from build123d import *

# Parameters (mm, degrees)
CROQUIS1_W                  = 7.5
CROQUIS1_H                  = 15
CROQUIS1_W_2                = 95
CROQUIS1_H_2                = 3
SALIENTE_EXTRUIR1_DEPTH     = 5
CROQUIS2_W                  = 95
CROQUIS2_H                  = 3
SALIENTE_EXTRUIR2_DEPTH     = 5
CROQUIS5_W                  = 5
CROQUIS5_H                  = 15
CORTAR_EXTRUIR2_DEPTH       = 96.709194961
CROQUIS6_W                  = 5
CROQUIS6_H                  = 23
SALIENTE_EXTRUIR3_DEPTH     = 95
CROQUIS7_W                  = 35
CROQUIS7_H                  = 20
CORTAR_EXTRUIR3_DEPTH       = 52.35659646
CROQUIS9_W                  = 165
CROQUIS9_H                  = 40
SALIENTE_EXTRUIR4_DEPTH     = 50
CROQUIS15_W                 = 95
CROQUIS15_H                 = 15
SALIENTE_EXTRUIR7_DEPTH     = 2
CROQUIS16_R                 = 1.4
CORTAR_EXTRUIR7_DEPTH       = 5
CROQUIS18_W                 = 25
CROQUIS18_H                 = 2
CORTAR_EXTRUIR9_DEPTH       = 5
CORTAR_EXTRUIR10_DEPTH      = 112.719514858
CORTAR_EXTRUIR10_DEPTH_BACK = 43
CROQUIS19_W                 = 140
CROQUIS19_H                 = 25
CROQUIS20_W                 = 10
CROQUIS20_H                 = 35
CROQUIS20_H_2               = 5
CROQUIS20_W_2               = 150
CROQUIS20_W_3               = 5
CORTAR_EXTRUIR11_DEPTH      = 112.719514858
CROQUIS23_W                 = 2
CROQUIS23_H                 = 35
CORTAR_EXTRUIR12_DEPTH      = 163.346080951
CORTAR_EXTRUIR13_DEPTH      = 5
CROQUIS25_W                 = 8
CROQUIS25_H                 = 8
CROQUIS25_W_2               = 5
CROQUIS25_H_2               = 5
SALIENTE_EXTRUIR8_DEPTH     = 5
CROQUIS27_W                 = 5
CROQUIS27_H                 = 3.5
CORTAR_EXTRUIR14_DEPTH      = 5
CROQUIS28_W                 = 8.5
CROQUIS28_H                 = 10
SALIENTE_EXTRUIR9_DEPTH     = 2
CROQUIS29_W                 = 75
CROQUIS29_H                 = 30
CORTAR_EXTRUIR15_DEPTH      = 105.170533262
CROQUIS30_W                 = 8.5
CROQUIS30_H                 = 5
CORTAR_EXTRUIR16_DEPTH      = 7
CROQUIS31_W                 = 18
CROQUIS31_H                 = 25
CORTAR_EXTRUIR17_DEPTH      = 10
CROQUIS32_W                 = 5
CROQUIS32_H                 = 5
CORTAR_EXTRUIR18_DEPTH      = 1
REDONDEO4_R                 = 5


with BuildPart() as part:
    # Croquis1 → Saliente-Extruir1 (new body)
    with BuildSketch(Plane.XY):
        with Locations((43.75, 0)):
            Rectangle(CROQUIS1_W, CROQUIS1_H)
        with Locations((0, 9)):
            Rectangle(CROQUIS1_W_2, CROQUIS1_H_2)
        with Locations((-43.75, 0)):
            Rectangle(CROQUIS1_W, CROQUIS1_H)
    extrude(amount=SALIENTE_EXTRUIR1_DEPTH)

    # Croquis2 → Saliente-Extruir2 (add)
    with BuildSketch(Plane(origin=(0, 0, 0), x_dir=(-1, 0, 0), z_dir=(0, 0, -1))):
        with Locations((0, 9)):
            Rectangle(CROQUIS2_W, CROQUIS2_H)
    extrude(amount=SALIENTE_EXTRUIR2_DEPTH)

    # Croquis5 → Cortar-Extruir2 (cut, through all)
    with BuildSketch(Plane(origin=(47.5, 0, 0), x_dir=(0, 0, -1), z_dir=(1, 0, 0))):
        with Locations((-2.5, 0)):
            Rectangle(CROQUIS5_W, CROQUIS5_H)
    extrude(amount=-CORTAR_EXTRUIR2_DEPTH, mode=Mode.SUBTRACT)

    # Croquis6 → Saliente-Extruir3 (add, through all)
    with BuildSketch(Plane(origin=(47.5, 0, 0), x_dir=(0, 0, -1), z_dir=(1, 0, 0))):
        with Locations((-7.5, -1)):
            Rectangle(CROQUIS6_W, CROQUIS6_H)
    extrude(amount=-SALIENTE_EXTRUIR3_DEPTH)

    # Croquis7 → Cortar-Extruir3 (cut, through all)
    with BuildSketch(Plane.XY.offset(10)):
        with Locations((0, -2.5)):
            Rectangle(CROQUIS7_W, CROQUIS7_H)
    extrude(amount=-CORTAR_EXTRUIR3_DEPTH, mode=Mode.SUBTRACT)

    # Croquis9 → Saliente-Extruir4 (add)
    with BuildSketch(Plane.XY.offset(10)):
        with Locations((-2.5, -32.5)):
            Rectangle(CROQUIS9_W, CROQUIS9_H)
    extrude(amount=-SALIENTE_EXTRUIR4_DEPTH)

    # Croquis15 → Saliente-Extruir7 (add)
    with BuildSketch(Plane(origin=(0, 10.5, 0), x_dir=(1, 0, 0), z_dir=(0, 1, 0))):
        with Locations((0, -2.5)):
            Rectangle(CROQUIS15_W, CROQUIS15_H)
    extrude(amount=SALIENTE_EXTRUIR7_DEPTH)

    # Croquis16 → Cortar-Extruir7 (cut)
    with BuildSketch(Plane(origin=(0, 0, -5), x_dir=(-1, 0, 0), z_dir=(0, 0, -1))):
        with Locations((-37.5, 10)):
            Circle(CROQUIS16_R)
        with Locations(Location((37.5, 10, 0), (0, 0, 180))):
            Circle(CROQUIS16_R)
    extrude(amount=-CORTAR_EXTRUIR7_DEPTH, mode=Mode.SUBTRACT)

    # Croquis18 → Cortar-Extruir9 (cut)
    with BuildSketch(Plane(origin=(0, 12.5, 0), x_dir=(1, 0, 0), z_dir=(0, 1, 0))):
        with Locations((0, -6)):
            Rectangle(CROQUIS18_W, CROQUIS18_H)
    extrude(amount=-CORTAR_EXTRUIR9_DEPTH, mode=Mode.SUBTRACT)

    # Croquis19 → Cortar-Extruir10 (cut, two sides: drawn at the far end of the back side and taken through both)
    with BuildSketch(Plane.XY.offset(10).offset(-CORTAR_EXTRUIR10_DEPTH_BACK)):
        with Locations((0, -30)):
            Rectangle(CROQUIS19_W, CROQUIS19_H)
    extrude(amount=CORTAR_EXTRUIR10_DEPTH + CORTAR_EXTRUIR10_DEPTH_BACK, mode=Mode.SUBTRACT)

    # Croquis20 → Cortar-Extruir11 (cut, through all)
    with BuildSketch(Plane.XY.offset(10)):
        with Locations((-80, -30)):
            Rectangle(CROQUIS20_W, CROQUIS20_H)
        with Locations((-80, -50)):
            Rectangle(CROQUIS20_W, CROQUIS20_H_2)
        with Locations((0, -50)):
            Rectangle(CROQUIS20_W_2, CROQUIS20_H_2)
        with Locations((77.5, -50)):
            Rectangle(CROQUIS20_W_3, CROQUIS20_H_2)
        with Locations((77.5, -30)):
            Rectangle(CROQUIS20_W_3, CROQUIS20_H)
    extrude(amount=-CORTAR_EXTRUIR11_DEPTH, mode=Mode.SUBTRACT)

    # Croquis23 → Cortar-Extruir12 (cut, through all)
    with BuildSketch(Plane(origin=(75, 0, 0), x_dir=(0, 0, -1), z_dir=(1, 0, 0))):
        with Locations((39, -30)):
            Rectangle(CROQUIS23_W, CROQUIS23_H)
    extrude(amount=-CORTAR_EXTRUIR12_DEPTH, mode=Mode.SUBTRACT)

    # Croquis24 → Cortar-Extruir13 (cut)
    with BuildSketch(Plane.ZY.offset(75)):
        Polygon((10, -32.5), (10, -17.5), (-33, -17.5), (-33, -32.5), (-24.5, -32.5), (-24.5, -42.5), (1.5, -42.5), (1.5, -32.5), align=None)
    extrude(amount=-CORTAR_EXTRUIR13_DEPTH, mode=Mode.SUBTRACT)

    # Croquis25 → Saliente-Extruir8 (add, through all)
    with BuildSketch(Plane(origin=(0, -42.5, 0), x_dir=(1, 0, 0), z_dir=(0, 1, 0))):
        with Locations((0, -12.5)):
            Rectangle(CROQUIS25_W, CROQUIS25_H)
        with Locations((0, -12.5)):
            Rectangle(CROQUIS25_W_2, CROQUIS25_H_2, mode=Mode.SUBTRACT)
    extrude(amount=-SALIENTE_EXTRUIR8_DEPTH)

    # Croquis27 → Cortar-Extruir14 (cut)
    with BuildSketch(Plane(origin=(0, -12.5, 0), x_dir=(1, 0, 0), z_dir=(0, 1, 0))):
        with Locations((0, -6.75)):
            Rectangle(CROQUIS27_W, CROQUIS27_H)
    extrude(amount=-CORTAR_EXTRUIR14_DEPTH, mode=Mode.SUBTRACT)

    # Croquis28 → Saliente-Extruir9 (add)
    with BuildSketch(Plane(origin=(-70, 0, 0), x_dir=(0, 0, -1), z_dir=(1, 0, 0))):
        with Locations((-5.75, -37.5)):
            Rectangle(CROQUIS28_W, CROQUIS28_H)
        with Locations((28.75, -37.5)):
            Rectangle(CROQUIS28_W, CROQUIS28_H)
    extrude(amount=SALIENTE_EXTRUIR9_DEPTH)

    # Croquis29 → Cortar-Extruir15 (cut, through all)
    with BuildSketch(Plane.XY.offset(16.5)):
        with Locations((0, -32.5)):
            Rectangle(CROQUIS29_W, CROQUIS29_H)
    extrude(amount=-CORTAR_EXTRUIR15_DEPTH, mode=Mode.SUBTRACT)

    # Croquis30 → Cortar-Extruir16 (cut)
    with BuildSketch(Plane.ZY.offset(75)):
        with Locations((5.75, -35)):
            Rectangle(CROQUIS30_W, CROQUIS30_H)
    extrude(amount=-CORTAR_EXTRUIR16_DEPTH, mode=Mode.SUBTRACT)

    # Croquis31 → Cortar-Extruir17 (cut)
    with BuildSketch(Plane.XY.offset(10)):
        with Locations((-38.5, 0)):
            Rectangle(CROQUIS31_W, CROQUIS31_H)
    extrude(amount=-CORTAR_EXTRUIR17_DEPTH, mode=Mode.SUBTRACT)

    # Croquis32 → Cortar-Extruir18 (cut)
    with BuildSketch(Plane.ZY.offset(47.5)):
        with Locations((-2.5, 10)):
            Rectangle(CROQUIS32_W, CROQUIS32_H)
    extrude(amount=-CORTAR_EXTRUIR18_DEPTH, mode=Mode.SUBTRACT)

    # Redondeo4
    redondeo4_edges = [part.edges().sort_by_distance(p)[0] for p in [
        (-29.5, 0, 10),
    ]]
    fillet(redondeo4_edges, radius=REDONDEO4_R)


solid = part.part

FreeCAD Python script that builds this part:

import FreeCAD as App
import Part
import Sketcher


def edges_at(feature, points):
    """Names of the edges that pass closest to the given points."""
    edges = feature.Shape.Edges
    near = lambda p: min(range(len(edges)), key=lambda i: edges[i].distToShape(Part.Vertex(*p))[0])
    return sorted({f"Edge{near(p) + 1}" for p in points})

doc = App.newDocument("Part")
params = doc.addObject("Spreadsheet::Sheet", "Params")
for row, (alias, value) in enumerate([
    ("sketch1_width", "95 mm"),
    ("sketch1_width2", "80 mm"),
    ("sketch1_height", "15 mm"),
    ("sketch1_height2", "18 mm"),
    ("pad1_length", "5 mm"),
    ("sketch2_width", "95 mm"),
    ("sketch2_height", "3 mm"),
    ("pad2_length", "5 mm"),
    ("sketch3_width", "15 mm"),
    ("sketch3_height", "5 mm"),
    ("sketch4_width", "23 mm"),
    ("sketch4_height", "5 mm"),
    ("pad3_length", "95 mm"),
    ("sketch5_width", "35 mm"),
    ("sketch5_height", "20 mm"),
    ("sketch6_width", "165 mm"),
    ("sketch6_height", "40 mm"),
    ("pad4_length", "50 mm"),
    ("sketch7_width", "95 mm"),
    ("sketch7_height", "15 mm"),
    ("pad5_length", "2 mm"),
    ("sketch8_diameter", "2.8 mm"),
    ("pocket3_length", "5 mm"),
    ("sketch9_width", "25 mm"),
    ("sketch9_height", "2 mm"),
    ("pocket4_length", "5 mm"),
    ("sketch10_width", "140 mm"),
    ("sketch10_height", "25 mm"),
    ("pocket5_length", "112.719515 mm"),
    ("pocket5_length2", "43 mm"),
    ("sketch11_width", "165 mm"),
    ("sketch11_width2", "5 mm"),
    ("sketch11_width3", "150 mm"),
    ("sketch11_height", "40 mm"),
    ("sketch11_height2", "35 mm"),
    ("sketch12_width", "35 mm"),
    ("sketch12_height", "2 mm"),
    ("sketch13_width", "15 mm"),
    ("sketch13_width2", "10 mm"),
    ("sketch13_height", "43 mm"),
    ("sketch13_height2", "26 mm"),
    ("pocket8_length", "5 mm"),
    ("sketch14_width", "8 mm"),
    ("sketch14_width2", "5 mm"),
    ("pad6_length", "5 mm"),
    ("sketch15_width", "5 mm"),
    ("sketch15_height", "3.5 mm"),
    ("pocket9_length", "5 mm"),
    ("sketch16_width", "10 mm"),
    ("sketch16_height", "8.5 mm"),
    ("pad7_length", "2 mm"),
    ("sketch17_width", "75 mm"),
    ("sketch17_height", "30 mm"),
    ("sketch18_width", "5 mm"),
    ("sketch18_height", "8.5 mm"),
    ("pocket11_length", "7 mm"),
    ("sketch19_width", "18 mm"),
    ("sketch19_height", "25 mm"),
    ("pocket12_length", "10 mm"),
    ("sketch20_width", "5 mm"),
    ("pocket13_length", "1 mm"),
    ("fillet_radius", "5 mm"),
], start=1):
    params.set(f"A{row}", alias)
    params.set(f"B{row}", "=" + value)
    params.setAlias(f"B{row}", alias)

body = doc.addObject("PartDesign::Body", "Body")

sketch1 = body.newObject("Sketcher::SketchObject", "Sketch")
sketch1.AttachmentSupport = (doc.getObject("XY_Plane"), [""])
sketch1.MapMode = "FlatFace"
sketch1.addGeometry([
    Part.LineSegment(App.Vector(40, 8, 0), App.Vector(40, -8, 0)),
    Part.LineSegment(App.Vector(40, -8, 0), App.Vector(48, -8, 0)),
    Part.LineSegment(App.Vector(48, -8, 0), App.Vector(48, 10, 0)),
    Part.LineSegment(App.Vector(48, 10, 0), App.Vector(-48, 10, 0)),
    Part.LineSegment(App.Vector(-48, 10, 0), App.Vector(-48, -8, 0)),
    Part.LineSegment(App.Vector(-48, -8, 0), App.Vector(-40, -8, 0)),
    Part.LineSegment(App.Vector(-40, -8, 0), App.Vector(-40, 8, 0)),
    Part.LineSegment(App.Vector(-40, 8, 0), App.Vector(40, 8, 0)),
], False)
sketch1.addConstraint([
    Sketcher.Constraint("Coincident", 0, 2, 1, 1),
    Sketcher.Constraint("Coincident", 1, 2, 2, 1),
    Sketcher.Constraint("Coincident", 2, 2, 3, 1),
    Sketcher.Constraint("Coincident", 3, 2, 4, 1),
    Sketcher.Constraint("Coincident", 4, 2, 5, 1),
    Sketcher.Constraint("Coincident", 5, 2, 6, 1),
    Sketcher.Constraint("Coincident", 6, 2, 7, 1),
    Sketcher.Constraint("Coincident", 7, 2, 0, 1),
    Sketcher.Constraint("Vertical", 0),
    Sketcher.Constraint("Horizontal", 1),
    Sketcher.Constraint("Vertical", 2),
    Sketcher.Constraint("Horizontal", 3),
    Sketcher.Constraint("Vertical", 4),
    Sketcher.Constraint("Horizontal", 5),
    Sketcher.Constraint("Vertical", 6),
    Sketcher.Constraint("Horizontal", 7),
    Sketcher.Constraint("Symmetric", 0, 2, 6, 2, -1, 1),
    Sketcher.Constraint("Symmetric", 1, 2, 4, 2, -2),
    Sketcher.Constraint("DistanceX", 3, 2, 3, 1, 95.0),
    Sketcher.Constraint("DistanceX", 7, 1, 7, 2, 80.0),
    Sketcher.Constraint("DistanceY", 0, 2, 0, 1, 15.0),
    Sketcher.Constraint("DistanceY", 2, 1, 2, 2, 18.0),
])
sketch1.setExpression("Constraints[18]", "Params.sketch1_width")
sketch1.setExpression("Constraints[19]", "Params.sketch1_width2")
sketch1.setExpression("Constraints[20]", "Params.sketch1_height")
sketch1.setExpression("Constraints[21]", "Params.sketch1_height2")
pad1 = body.newObject("PartDesign::Pad", "Pad")
pad1.Profile = sketch1
pad1.setExpression("Length", "Params.pad1_length")

sketch2 = body.newObject("Sketcher::SketchObject", "Sketch001")
sketch2.AttachmentSupport = (doc.getObject("XY_Plane"), [""])
sketch2.MapMode = "FlatFace"
sketch2.addGeometry([
    Part.LineSegment(App.Vector(47.5, 10.5, 0), App.Vector(47.5, 7.5, 0)),
    Part.LineSegment(App.Vector(47.5, 7.5, 0), App.Vector(-47.5, 7.5, 0)),
    Part.LineSegment(App.Vector(-47.5, 7.5, 0), App.Vector(-47.5, 10.5, 0)),
    Part.LineSegment(App.Vector(-47.5, 10.5, 0), App.Vector(47.5, 10.5, 0)),
], False)
sketch2.addConstraint([
    Sketcher.Constraint("Coincident", 0, 2, 1, 1),
    Sketcher.Constraint("Coincident", 1, 2, 2, 1),
    Sketcher.Constraint("Coincident", 2, 2, 3, 1),
    Sketcher.Constraint("Coincident", 3, 2, 0, 1),
    Sketcher.Constraint("Vertical", 0),
    Sketcher.Constraint("Horizontal", 1),
    Sketcher.Constraint("Vertical", 2),
    Sketcher.Constraint("Horizontal", 3),
    Sketcher.Constraint("DistanceX", 1, 2, 1, 1, 95.0),
    Sketcher.Constraint("DistanceY", 0, 2, 0, 1, 3.0),
    Sketcher.Constraint("DistanceX", -1, 1, 0, 2, 47.5),
    Sketcher.Constraint("DistanceY", -1, 1, 0, 2, 7.5),
])
sketch2.setExpression("Constraints[8]", "Params.sketch2_width")
sketch2.setExpression("Constraints[9]", "Params.sketch2_height")
pad2 = body.newObject("PartDesign::Pad", "Pad001")
pad2.Profile = sketch2
pad2.setExpression("Length", "Params.pad2_length")
pad2.Reversed = True

sketch3 = body.newObject("Sketcher::SketchObject", "Sketch002")
sketch3.AttachmentSupport = (doc.getObject("YZ_Plane"), [""])
sketch3.MapMode = "FlatFace"
sketch3.AttachmentOffset = App.Placement(App.Vector(0, 0, 47.5), App.Rotation())
sketch3.addGeometry([
    Part.LineSegment(App.Vector(8, 5, 0), App.Vector(-8, 5, 0)),
    Part.LineSegment(App.Vector(-8, 5, 0), App.Vector(-8, 0, 0)),
    Part.LineSegment(App.Vector(-8, 0, 0), App.Vector(8, 0, 0)),
    Part.LineSegment(App.Vector(8, 0, 0), App.Vector(8, 5, 0)),
], False)
sketch3.addConstraint([
    Sketcher.Constraint("Coincident", 0, 2, 1, 1),
    Sketcher.Constraint("Coincident", 1, 2, 2, 1),
    Sketcher.Constraint("Coincident", 2, 2, 3, 1),
    Sketcher.Constraint("Coincident", 3, 2, 0, 1),
    Sketcher.Constraint("Horizontal", 0),
    Sketcher.Constraint("Vertical", 1),
    Sketcher.Constraint("Horizontal", 2),
    Sketcher.Constraint("Vertical", 3),
    Sketcher.Constraint("Symmetric", 1, 2, 2, 2, -1, 1),
    Sketcher.Constraint("DistanceX", 0, 2, 0, 1, 15.0),
    Sketcher.Constraint("DistanceY", 1, 2, 1, 1, 5.0),
])
sketch3.setExpression("Constraints[9]", "Params.sketch3_width")
sketch3.setExpression("Constraints[10]", "Params.sketch3_height")
pocket1 = body.newObject("PartDesign::Pocket", "Pocket")
pocket1.Profile = sketch3
pocket1.Type = "ThroughAll"

sketch4 = body.newObject("Sketcher::SketchObject", "Sketch003")
sketch4.AttachmentSupport = (doc.getObject("YZ_Plane"), [""])
sketch4.MapMode = "FlatFace"
sketch4.AttachmentOffset = App.Placement(App.Vector(0, 0, 47.5), App.Rotation())
sketch4.addGeometry([
    Part.LineSegment(App.Vector(10, 10, 0), App.Vector(-12, 10, 0)),
    Part.LineSegment(App.Vector(-12, 10, 0), App.Vector(-12, 5, 0)),
    Part.LineSegment(App.Vector(-12, 5, 0), App.Vector(10, 5, 0)),
    Part.LineSegment(App.Vector(10, 5, 0), App.Vector(10, 10, 0)),
], False)
sketch4.addConstraint([
    Sketcher.Constraint("Coincident", 0, 2, 1, 1),
    Sketcher.Constraint("Coincident", 1, 2, 2, 1),
    Sketcher.Constraint("Coincident", 2, 2, 3, 1),
    Sketcher.Constraint("Coincident", 3, 2, 0, 1),
    Sketcher.Constraint("Horizontal", 0),
    Sketcher.Constraint("Vertical", 1),
    Sketcher.Constraint("Horizontal", 2),
    Sketcher.Constraint("Vertical", 3),
    Sketcher.Constraint("DistanceX", 0, 2, 0, 1, 23.0),
    Sketcher.Constraint("DistanceY", 1, 2, 1, 1, 5.0),
    Sketcher.Constraint("DistanceY", -1, 1, 0, 2, 10.0),
    Sketcher.Constraint("DistanceX", 0, 2, -1, 1, 12.5),
])
sketch4.setExpression("Constraints[8]", "Params.sketch4_width")
sketch4.setExpression("Constraints[9]", "Params.sketch4_height")
pad3 = body.newObject("PartDesign::Pad", "Pad002")
pad3.Profile = sketch4
pad3.setExpression("Length", "Params.pad3_length")
pad3.Reversed = True

sketch5 = body.newObject("Sketcher::SketchObject", "Sketch004")
sketch5.AttachmentSupport = (doc.getObject("XY_Plane"), [""])
sketch5.MapMode = "FlatFace"
sketch5.AttachmentOffset = App.Placement(App.Vector(0, 0, 10), App.Rotation())
sketch5.addGeometry([
    Part.LineSegment(App.Vector(-18, 8, 0), App.Vector(-18, -12, 0)),
    Part.LineSegment(App.Vector(-18, -12, 0), App.Vector(18, -12, 0)),
    Part.LineSegment(App.Vector(18, -12, 0), App.Vector(18, 8, 0)),
    Part.LineSegment(App.Vector(18, 8, 0), App.Vector(-18, 8, 0)),
], False)
sketch5.addConstraint([
    Sketcher.Constraint("Coincident", 0, 2, 1, 1),
    Sketcher.Constraint("Coincident", 1, 2, 2, 1),
    Sketcher.Constraint("Coincident", 2, 2, 3, 1),
    Sketcher.Constraint("Coincident", 3, 2, 0, 1),
    Sketcher.Constraint("Vertical", 0),
    Sketcher.Constraint("Horizontal", 1),
    Sketcher.Constraint("Vertical", 2),
    Sketcher.Constraint("Horizontal", 3),
    Sketcher.Constraint("DistanceX", 1, 1, 1, 2, 35.0),
    Sketcher.Constraint("DistanceY", 0, 2, 0, 1, 20.0),
    Sketcher.Constraint("DistanceX", 0, 2, -1, 1, 17.5),
    Sketcher.Constraint("DistanceY", 0, 2, -1, 1, 12.5),
])
sketch5.setExpression("Constraints[8]", "Params.sketch5_width")
sketch5.setExpression("Constraints[9]", "Params.sketch5_height")
pocket2 = body.newObject("PartDesign::Pocket", "Pocket001")
pocket2.Profile = sketch5
pocket2.Type = "ThroughAll"

sketch6 = body.newObject("Sketcher::SketchObject", "Sketch005")
sketch6.AttachmentSupport = (doc.getObject("XY_Plane"), [""])
sketch6.MapMode = "FlatFace"
sketch6.AttachmentOffset = App.Placement(App.Vector(0, 0, 10), App.Rotation())
sketch6.addGeometry([
    Part.LineSegment(App.Vector(-85, -12, 0), App.Vector(-85, -52, 0)),
    Part.LineSegment(App.Vector(-85, -52, 0), App.Vector(80, -52, 0)),
    Part.LineSegment(App.Vector(80, -52, 0), App.Vector(80, -12, 0)),
    Part.LineSegment(App.Vector(80, -12, 0), App.Vector(-85, -12, 0)),
], False)
sketch6.addConstraint([
    Sketcher.Constraint("Coincident", 0, 2, 1, 1),
    Sketcher.Constraint("Coincident", 1, 2, 2, 1),
    Sketcher.Constraint("Coincident", 2, 2, 3, 1),
    Sketcher.Constraint("Coincident", 3, 2, 0, 1),
    Sketcher.Constraint("Vertical", 0),
    Sketcher.Constraint("Horizontal", 1),
    Sketcher.Constraint("Vertical", 2),
    Sketcher.Constraint("Horizontal", 3),
    Sketcher.Constraint("DistanceX", 1, 1, 1, 2, 165.0),
    Sketcher.Constraint("DistanceY", 0, 2, 0, 1, 40.0),
    Sketcher.Constraint("DistanceX", 0, 2, -1, 1, 85.0),
    Sketcher.Constraint("DistanceY", 0, 2, -1, 1, 52.5),
])
sketch6.setExpression("Constraints[8]", "Params.sketch6_width")
sketch6.setExpression("Constraints[9]", "Params.sketch6_height")
pad4 = body.newObject("PartDesign::Pad", "Pad003")
pad4.Profile = sketch6
pad4.setExpression("Length", "Params.pad4_length")
pad4.Reversed = True

sketch7 = body.newObject("Sketcher::SketchObject", "Sketch006")
sketch7.AttachmentSupport = (doc.getObject("XZ_Plane"), [""])
sketch7.MapMode = "FlatFace"
sketch7.AttachmentOffset = App.Placement(App.Vector(0, 0, -10.5), App.Rotation())
sketch7.addGeometry([
    Part.LineSegment(App.Vector(-48, -5, 0), App.Vector(-48, 10, 0)),
    Part.LineSegment(App.Vector(-48, 10, 0), App.Vector(48, 10, 0)),
    Part.LineSegment(App.Vector(48, 10, 0), App.Vector(48, -5, 0)),
    Part.LineSegment(App.Vector(48, -5, 0), App.Vector(-48, -5, 0)),
], False)
sketch7.addConstraint([
    Sketcher.Constraint("Coincident", 0, 2, 1, 1),
    Sketcher.Constraint("Coincident", 1, 2, 2, 1),
    Sketcher.Constraint("Coincident", 2, 2, 3, 1),
    Sketcher.Constraint("Coincident", 3, 2, 0, 1),
    Sketcher.Constraint("Vertical", 0),
    Sketcher.Constraint("Horizontal", 1),
    Sketcher.Constraint("Vertical", 2),
    Sketcher.Constraint("Horizontal", 3),
    Sketcher.Constraint("DistanceX", 1, 1, 1, 2, 95.0),
    Sketcher.Constraint("DistanceY", 0, 1, 0, 2, 15.0),
    Sketcher.Constraint("DistanceY", -1, 1, 0, 2, 10.0),
    Sketcher.Constraint("DistanceX", 0, 2, -1, 1, 47.5),
])
sketch7.setExpression("Constraints[8]", "Params.sketch7_width")
sketch7.setExpression("Constraints[9]", "Params.sketch7_height")
pad5 = body.newObject("PartDesign::Pad", "Pad004")
pad5.Profile = sketch7
pad5.setExpression("Length", "Params.pad5_length")
pad5.Reversed = True

sketch8 = body.newObject("Sketcher::SketchObject", "Sketch007")
sketch8.AttachmentSupport = (doc.getObject("XY_Plane"), [""])
sketch8.MapMode = "FlatFace"
sketch8.AttachmentOffset = App.Placement(App.Vector(0, 0, -5), App.Rotation())
sketch8.addGeometry([
    Part.Circle(App.Vector(37.5, 10, 0), App.Vector(0, 0, 1), 1.4),
    Part.Circle(App.Vector(-37.5, 10, 0), App.Vector(0, 0, 1), 1.4),
], False)
sketch8.addConstraint([
    Sketcher.Constraint("Equal", 0, 1),
    Sketcher.Constraint("Symmetric", 0, 3, 1, 3, -2),
    Sketcher.Constraint("Diameter", 0, 2.8),
    Sketcher.Constraint("DistanceY", -1, 1, 0, 3, 10.0),
    Sketcher.Constraint("DistanceX", 1, 3, 0, 3, 75.0),
])
sketch8.setExpression("Constraints[2]", "Params.sketch8_diameter")
pocket3 = body.newObject("PartDesign::Pocket", "Pocket002")
pocket3.Profile = sketch8
pocket3.setExpression("Length", "Params.pocket3_length")
pocket3.Reversed = True

sketch9 = body.newObject("Sketcher::SketchObject", "Sketch008")
sketch9.AttachmentSupport = (doc.getObject("XZ_Plane"), [""])
sketch9.MapMode = "FlatFace"
sketch9.AttachmentOffset = App.Placement(App.Vector(0, 0, -12.5), App.Rotation())
sketch9.addGeometry([
    Part.LineSegment(App.Vector(-12.5, 5, 0), App.Vector(-12.5, 7, 0)),
    Part.LineSegment(App.Vector(-12.5, 7, 0), App.Vector(12.5, 7, 0)),
    Part.LineSegment(App.Vector(12.5, 7, 0), App.Vector(12.5, 5, 0)),
    Part.LineSegment(App.Vector(12.5, 5, 0), App.Vector(-12.5, 5, 0)),
], False)
sketch9.addConstraint([
    Sketcher.Constraint("Coincident", 0, 2, 1, 1),
    Sketcher.Constraint("Coincident", 1, 2, 2, 1),
    Sketcher.Constraint("Coincident", 2, 2, 3, 1),
    Sketcher.Constraint("Coincident", 3, 2, 0, 1),
    Sketcher.Constraint("Vertical", 0),
    Sketcher.Constraint("Horizontal", 1),
    Sketcher.Constraint("Vertical", 2),
    Sketcher.Constraint("Horizontal", 3),
    Sketcher.Constraint("DistanceX", 1, 1, 1, 2, 25.0),
    Sketcher.Constraint("DistanceY", 0, 1, 0, 2, 2.0),
    Sketcher.Constraint("DistanceY", -1, 1, 0, 2, 7.0),
    Sketcher.Constraint("DistanceX", 0, 2, -1, 1, 12.5),
])
sketch9.setExpression("Constraints[8]", "Params.sketch9_width")
sketch9.setExpression("Constraints[9]", "Params.sketch9_height")
pocket4 = body.newObject("PartDesign::Pocket", "Pocket003")
pocket4.Profile = sketch9
pocket4.setExpression("Length", "Params.pocket4_length")
pocket4.Reversed = True

sketch10 = body.newObject("Sketcher::SketchObject", "Sketch009")
sketch10.AttachmentSupport = (doc.getObject("XY_Plane"), [""])
sketch10.MapMode = "FlatFace"
sketch10.AttachmentOffset = App.Placement(App.Vector(0, 0, 10), App.Rotation())
sketch10.addGeometry([
    Part.LineSegment(App.Vector(-70, -18, 0), App.Vector(-70, -42, 0)),
    Part.LineSegment(App.Vector(-70, -42, 0), App.Vector(70, -42, 0)),
    Part.LineSegment(App.Vector(70, -42, 0), App.Vector(70, -18, 0)),
    Part.LineSegment(App.Vector(70, -18, 0), App.Vector(-70, -18, 0)),
], False)
sketch10.addConstraint([
    Sketcher.Constraint("Coincident", 0, 2, 1, 1),
    Sketcher.Constraint("Coincident", 1, 2, 2, 1),
    Sketcher.Constraint("Coincident", 2, 2, 3, 1),
    Sketcher.Constraint("Coincident", 3, 2, 0, 1),
    Sketcher.Constraint("Vertical", 0),
    Sketcher.Constraint("Horizontal", 1),
    Sketcher.Constraint("Vertical", 2),
    Sketcher.Constraint("Horizontal", 3),
    Sketcher.Constraint("DistanceX", 1, 1, 1, 2, 140.0),
    Sketcher.Constraint("DistanceY", 0, 2, 0, 1, 25.0),
    Sketcher.Constraint("DistanceX", 0, 2, -1, 1, 70.0),
    Sketcher.Constraint("DistanceY", 0, 2, -1, 1, 42.5),
])
sketch10.setExpression("Constraints[8]", "Params.sketch10_width")
sketch10.setExpression("Constraints[9]", "Params.sketch10_height")
pocket5 = body.newObject("PartDesign::Pocket", "Pocket004")
pocket5.Profile = sketch10
pocket5.Type = "TwoLengths"
pocket5.setExpression("Length", "Params.pocket5_length")
pocket5.setExpression("Length2", "Params.pocket5_length2")
pocket5.Reversed = True

sketch11 = body.newObject("Sketcher::SketchObject", "Sketch010")
sketch11.AttachmentSupport = (doc.getObject("XY_Plane"), [""])
sketch11.MapMode = "FlatFace"
sketch11.AttachmentOffset = App.Placement(App.Vector(0, 0, 10), App.Rotation())
sketch11.addGeometry([
    Part.LineSegment(App.Vector(-85, -12, 0), App.Vector(-85, -52, 0)),
    Part.LineSegment(App.Vector(-85, -52, 0), App.Vector(80, -52, 0)),
    Part.LineSegment(App.Vector(80, -52, 0), App.Vector(80, -12, 0)),
    Part.LineSegment(App.Vector(80, -12, 0), App.Vector(75, -12, 0)),
    Part.LineSegment(App.Vector(75, -12, 0), App.Vector(75, -48, 0)),
    Part.LineSegment(App.Vector(75, -48, 0), App.Vector(-75, -48, 0)),
    Part.LineSegment(App.Vector(-75, -48, 0), App.Vector(-75, -12, 0)),
    Part.LineSegment(App.Vector(-75, -12, 0), App.Vector(-85, -12, 0)),
], False)
sketch11.addConstraint([
    Sketcher.Constraint("Coincident", 0, 2, 1, 1),
    Sketcher.Constraint("Coincident", 1, 2, 2, 1),
    Sketcher.Constraint("Coincident", 2, 2, 3, 1),
    Sketcher.Constraint("Coincident", 3, 2, 4, 1),
    Sketcher.Constraint("Coincident", 4, 2, 5, 1),
    Sketcher.Constraint("Coincident", 5, 2, 6, 1),
    Sketcher.Constraint("Coincident", 6, 2, 7, 1),
    Sketcher.Constraint("Coincident", 7, 2, 0, 1),
    Sketcher.Constraint("Vertical", 0),
    Sketcher.Constraint("Horizontal", 1),
    Sketcher.Constraint("Vertical", 2),
    Sketcher.Constraint("Horizontal", 3),
    Sketcher.Constraint("Vertical", 4),
    Sketcher.Constraint("Horizontal", 5),
    Sketcher.Constraint("Vertical", 6),
    Sketcher.Constraint("Horizontal", 7),
    Sketcher.Constraint("Symmetric", 3, 2, 6, 2, -2),
    Sketcher.Constraint("DistanceX", 1, 1, 1, 2, 165.0),
    Sketcher.Constraint("DistanceX", 3, 2, 3, 1, 5.0),
    Sketcher.Constraint("DistanceX", 5, 2, 5, 1, 150.0),
    Sketcher.Constraint("DistanceY", 0, 2, 0, 1, 40.0),
    Sketcher.Constraint("DistanceY", 4, 2, 4, 1, 35.0),
    Sketcher.Constraint("DistanceY", 0, 2, -1, 1, 52.5),
])
sketch11.setExpression("Constraints[17]", "Params.sketch11_width")
sketch11.setExpression("Constraints[18]", "Params.sketch11_width2")
sketch11.setExpression("Constraints[19]", "Params.sketch11_width3")
sketch11.setExpression("Constraints[20]", "Params.sketch11_height")
sketch11.setExpression("Constraints[21]", "Params.sketch11_height2")
pocket6 = body.newObject("PartDesign::Pocket", "Pocket005")
pocket6.Profile = sketch11
pocket6.Type = "ThroughAll"

sketch12 = body.newObject("Sketcher::SketchObject", "Sketch011")
sketch12.AttachmentSupport = (doc.getObject("YZ_Plane"), [""])
sketch12.MapMode = "FlatFace"
sketch12.AttachmentOffset = App.Placement(App.Vector(0, 0, 75), App.Rotation())
sketch12.addGeometry([
    Part.LineSegment(App.Vector(-12.5, -38, 0), App.Vector(-47.5, -38, 0)),
    Part.LineSegment(App.Vector(-47.5, -38, 0), App.Vector(-47.5, -40, 0)),
    Part.LineSegment(App.Vector(-47.5, -40, 0), App.Vector(-12.5, -40, 0)),
    Part.LineSegment(App.Vector(-12.5, -40, 0), App.Vector(-12.5, -38, 0)),
], False)
sketch12.addConstraint([
    Sketcher.Constraint("Coincident", 0, 2, 1, 1),
    Sketcher.Constraint("Coincident", 1, 2, 2, 1),
    Sketcher.Constraint("Coincident", 2, 2, 3, 1),
    Sketcher.Constraint("Coincident", 3, 2, 0, 1),
    Sketcher.Constraint("Horizontal", 0),
    Sketcher.Constraint("Vertical", 1),
    Sketcher.Constraint("Horizontal", 2),
    Sketcher.Constraint("Vertical", 3),
    Sketcher.Constraint("DistanceX", 0, 2, 0, 1, 35.0),
    Sketcher.Constraint("DistanceY", 1, 2, 1, 1, 2.0),
    Sketcher.Constraint("DistanceY", 0, 2, -1, 1, 38.0),
    Sketcher.Constraint("DistanceX", 0, 2, -1, 1, 47.5),
])
sketch12.setExpression("Constraints[8]", "Params.sketch12_width")
sketch12.setExpression("Constraints[9]", "Params.sketch12_height")
pocket7 = body.newObject("PartDesign::Pocket", "Pocket006")
pocket7.Profile = sketch12
pocket7.Type = "ThroughAll"

sketch13 = body.newObject("Sketcher::SketchObject", "Sketch012")
sketch13.AttachmentSupport = (doc.getObject("YZ_Plane"), [""])
sketch13.MapMode = "FlatFace"
sketch13.AttachmentOffset = App.Placement(App.Vector(0, 0, -75), App.Rotation())
sketch13.addGeometry([
    Part.LineSegment(App.Vector(-32, 10, 0), App.Vector(-18, 10, 0)),
    Part.LineSegment(App.Vector(-18, 10, 0), App.Vector(-18, -33, 0)),
    Part.LineSegment(App.Vector(-18, -33, 0), App.Vector(-32, -33, 0)),
    Part.LineSegment(App.Vector(-32, -33, 0), App.Vector(-32, -24, 0)),
    Part.LineSegment(App.Vector(-32, -24, 0), App.Vector(-42, -24, 0)),
    Part.LineSegment(App.Vector(-42, -24, 0), App.Vector(-42, 2, 0)),
    Part.LineSegment(App.Vector(-42, 2, 0), App.Vector(-32, 2, 0)),
    Part.LineSegment(App.Vector(-32, 2, 0), App.Vector(-32, 10, 0)),
], False)
sketch13.addConstraint([
    Sketcher.Constraint("Coincident", 0, 2, 1, 1),
    Sketcher.Constraint("Coincident", 1, 2, 2, 1),
    Sketcher.Constraint("Coincident", 2, 2, 3, 1),
    Sketcher.Constraint("Coincident", 3, 2, 4, 1),
    Sketcher.Constraint("Coincident", 4, 2, 5, 1),
    Sketcher.Constraint("Coincident", 5, 2, 6, 1),
    Sketcher.Constraint("Coincident", 6, 2, 7, 1),
    Sketcher.Constraint("Coincident", 7, 2, 0, 1),
    Sketcher.Constraint("Horizontal", 0),
    Sketcher.Constraint("Vertical", 1),
    Sketcher.Constraint("Horizontal", 2),
    Sketcher.Constraint("Vertical", 3),
    Sketcher.Constraint("Horizontal", 4),
    Sketcher.Constraint("Vertical", 5),
    Sketcher.Constraint("Horizontal", 6),
    Sketcher.Constraint("Vertical", 7),
    Sketcher.Constraint("Vertical", 3, 2, 6, 2),
    Sketcher.Constraint("Equal", 3, 7),
    Sketcher.Constraint("DistanceX", 0, 1, 0, 2, 15.0),
    Sketcher.Constraint("DistanceX", 4, 2, 4, 1, 10.0),
    Sketcher.Constraint("DistanceY", 1, 2, 1, 1, 43.0),
    Sketcher.Constraint("DistanceY", 5, 1, 5, 2, 26.0),
    Sketcher.Constraint("DistanceY", -1, 1, 0, 2, 10.0),
    Sketcher.Constraint("DistanceX", 0, 2, -1, 1, 17.5),
])
sketch13.setExpression("Constraints[18]", "Params.sketch13_width")
sketch13.setExpression("Constraints[19]", "Params.sketch13_width2")
sketch13.setExpression("Constraints[20]", "Params.sketch13_height")
sketch13.setExpression("Constraints[21]", "Params.sketch13_height2")
pocket8 = body.newObject("PartDesign::Pocket", "Pocket007")
pocket8.Profile = sketch13
pocket8.setExpression("Length", "Params.pocket8_length")
pocket8.Reversed = True

sketch14 = body.newObject("Sketcher::SketchObject", "Sketch013")
sketch14.AttachmentSupport = (doc.getObject("XZ_Plane"), [""])
sketch14.MapMode = "FlatFace"
sketch14.AttachmentOffset = App.Placement(App.Vector(0, 0, 42.5), App.Rotation())
sketch14.addGeometry([
    Part.LineSegment(App.Vector(-4, 8, 0), App.Vector(-4, 16, 0)),
    Part.LineSegment(App.Vector(-4, 16, 0), App.Vector(4, 16, 0)),
    Part.LineSegment(App.Vector(4, 16, 0), App.Vector(4, 8, 0)),
    Part.LineSegment(App.Vector(4, 8, 0), App.Vector(-4, 8, 0)),
    Part.LineSegment(App.Vector(2, 15, 0), App.Vector(-2, 15, 0)),
    Part.LineSegment(App.Vector(-2, 15, 0), App.Vector(-2, 10, 0)),
    Part.LineSegment(App.Vector(-2, 10, 0), App.Vector(2, 10, 0)),
    Part.LineSegment(App.Vector(2, 10, 0), App.Vector(2, 15, 0)),
], False)
sketch14.addConstraint([
    Sketcher.Constraint("Coincident", 0, 2, 1, 1),
    Sketcher.Constraint("Coincident", 1, 2, 2, 1),
    Sketcher.Constraint("Coincident", 2, 2, 3, 1),
    Sketcher.Constraint("Coincident", 3, 2, 0, 1),
    Sketcher.Constraint("Coincident", 4, 2, 5, 1),
    Sketcher.Constraint("Coincident", 5, 2, 6, 1),
    Sketcher.Constraint("Coincident", 6, 2, 7, 1),
    Sketcher.Constraint("Coincident", 7, 2, 4, 1),
    Sketcher.Constraint("Vertical", 0),
    Sketcher.Constraint("Horizontal", 1),
    Sketcher.Constraint("Vertical", 2),
    Sketcher.Constraint("Horizontal", 3),
    Sketcher.Constraint("Horizontal", 4),
    Sketcher.Constraint("Vertical", 5),
    Sketcher.Constraint("Horizontal", 6),
    Sketcher.Constraint("Vertical", 7),
    Sketcher.Constraint("Equal", 3, 0),
    Sketcher.Constraint("Equal", 6, 5),
    Sketcher.Constraint("DistanceX", 1, 1, 1, 2, 8.0),
    Sketcher.Constraint("DistanceX", 4, 2, 4, 1, 5.0),
    Sketcher.Constraint("DistanceX", 0, 2, -1, 1, 4.0),
    Sketcher.Constraint("DistanceY", -1, 1, 4, 2, 15.0),
    Sketcher.Constraint("DistanceY", -1, 1, 0, 2, 16.5),
    Sketcher.Constraint("DistanceX", 4, 2, -1, 1, 2.5),
])
sketch14.setExpression("Constraints[18]", "Params.sketch14_width")
sketch14.setExpression("Constraints[19]", "Params.sketch14_width2")
pad6 = body.newObject("PartDesign::Pad", "Pad005")
pad6.Profile = sketch14
pad6.setExpression("Length", "Params.pad6_length")

sketch15 = body.newObject("Sketcher::SketchObject", "Sketch014")
sketch15.AttachmentSupport = (doc.getObject("XZ_Plane"), [""])
sketch15.MapMode = "FlatFace"
sketch15.AttachmentOffset = App.Placement(App.Vector(0, 0, 12.5), App.Rotation())
sketch15.addGeometry([
    Part.LineSegment(App.Vector(-2.5, 5, 0), App.Vector(-2.5, 8.5, 0)),
    Part.LineSegment(App.Vector(-2.5, 8.5, 0), App.Vector(2.5, 8.5, 0)),
    Part.LineSegment(App.Vector(2.5, 8.5, 0), App.Vector(2.5, 5, 0)),
    Part.LineSegment(App.Vector(2.5, 5, 0), App.Vector(-2.5, 5, 0)),
], False)
sketch15.addConstraint([
    Sketcher.Constraint("Coincident", 0, 2, 1, 1),
    Sketcher.Constraint("Coincident", 1, 2, 2, 1),
    Sketcher.Constraint("Coincident", 2, 2, 3, 1),
    Sketcher.Constraint("Coincident", 3, 2, 0, 1),
    Sketcher.Constraint("Vertical", 0),
    Sketcher.Constraint("Horizontal", 1),
    Sketcher.Constraint("Vertical", 2),
    Sketcher.Constraint("Horizontal", 3),
    Sketcher.Constraint("DistanceX", 1, 1, 1, 2, 5.0),
    Sketcher.Constraint("DistanceY", 0, 1, 0, 2, 3.5),
    Sketcher.Constraint("DistanceY", -1, 1, 2, 2, 5.0),
    Sketcher.Constraint("DistanceX", 0, 2, -1, 1, 2.5),
])
sketch15.setExpression("Constraints[8]", "Params.sketch15_width")
sketch15.setExpression("Constraints[9]", "Params.sketch15_height")
pocket9 = body.newObject("PartDesign::Pocket", "Pocket008")
pocket9.Profile = sketch15
pocket9.setExpression("Length", "Params.pocket9_length")
pocket9.Reversed = True

sketch16 = body.newObject("Sketcher::SketchObject", "Sketch015")
sketch16.AttachmentSupport = (doc.getObject("YZ_Plane"), [""])
sketch16.MapMode = "FlatFace"
sketch16.AttachmentOffset = App.Placement(App.Vector(0, 0, -70), App.Rotation())
sketch16.addGeometry([
    Part.LineSegment(App.Vector(-32, 10, 0), App.Vector(-42, 10, 0)),
    Part.LineSegment(App.Vector(-42, 10, 0), App.Vector(-42, 2, 0)),
    Part.LineSegment(App.Vector(-42, 2, 0), App.Vector(-32, 2, 0)),
    Part.LineSegment(App.Vector(-32, 2, 0), App.Vector(-32, 10, 0)),
    Part.LineSegment(App.Vector(-32, -24, 0), App.Vector(-42, -24, 0)),
    Part.LineSegment(App.Vector(-42, -24, 0), App.Vector(-42, -33, 0)),
    Part.LineSegment(App.Vector(-42, -33, 0), App.Vector(-32, -33, 0)),
    Part.LineSegment(App.Vector(-32, -33, 0), App.Vector(-32, -24, 0)),
], False)
sketch16.addConstraint([
    Sketcher.Constraint("Coincident", 0, 2, 1, 1),
    Sketcher.Constraint("Coincident", 1, 2, 2, 1),
    Sketcher.Constraint("Coincident", 2, 2, 3, 1),
    Sketcher.Constraint("Coincident", 3, 2, 0, 1),
    Sketcher.Constraint("Coincident", 4, 2, 5, 1),
    Sketcher.Constraint("Coincident", 5, 2, 6, 1),
    Sketcher.Constraint("Coincident", 6, 2, 7, 1),
    Sketcher.Constraint("Coincident", 7, 2, 4, 1),
    Sketcher.Constraint("Horizontal", 0),
    Sketcher.Constraint("Vertical", 1),
    Sketcher.Constraint("Horizontal", 2),
    Sketcher.Constraint("Vertical", 3),
    Sketcher.Constraint("Horizontal", 4),
    Sketcher.Constraint("Vertical", 5),
    Sketcher.Constraint("Horizontal", 6),
    Sketcher.Constraint("Vertical", 7),
    Sketcher.Constraint("Vertical", 1, 2, 4, 2),
    Sketcher.Constraint("Vertical", 3, 2, 6, 2),
    Sketcher.Constraint("Equal", 3, 5),
    Sketcher.Constraint("DistanceX", 0, 2, 0, 1, 10.0),
    Sketcher.Constraint("DistanceY", 1, 2, 1, 1, 8.5),
    Sketcher.Constraint("DistanceY", -1, 1, 0, 2, 10.0),
    Sketcher.Constraint("DistanceY", 5, 2, -1, 1, 33.0),
    Sketcher.Constraint("DistanceX", 0, 2, -1, 1, 42.5),
])
sketch16.setExpression("Constraints[19]", "Params.sketch16_width")
sketch16.setExpression("Constraints[20]", "Params.sketch16_height")
pad7 = body.newObject("PartDesign::Pad", "Pad006")
pad7.Profile = sketch16
pad7.setExpression("Length", "Params.pad7_length")

sketch17 = body.newObject("Sketcher::SketchObject", "Sketch016")
sketch17.AttachmentSupport = (doc.getObject("XY_Plane"), [""])
sketch17.MapMode = "FlatFace"
sketch17.AttachmentOffset = App.Placement(App.Vector(0, 0, 16.5), App.Rotation())
sketch17.addGeometry([
    Part.LineSegment(App.Vector(-38, -18, 0), App.Vector(-38, -48, 0)),
    Part.LineSegment(App.Vector(-38, -48, 0), App.Vector(38, -48, 0)),
    Part.LineSegment(App.Vector(38, -48, 0), App.Vector(38, -18, 0)),
    Part.LineSegment(App.Vector(38, -18, 0), App.Vector(-38, -18, 0)),
], False)
sketch17.addConstraint([
    Sketcher.Constraint("Coincident", 0, 2, 1, 1),
    Sketcher.Constraint("Coincident", 1, 2, 2, 1),
    Sketcher.Constraint("Coincident", 2, 2, 3, 1),
    Sketcher.Constraint("Coincident", 3, 2, 0, 1),
    Sketcher.Constraint("Vertical", 0),
    Sketcher.Constraint("Horizontal", 1),
    Sketcher.Constraint("Vertical", 2),
    Sketcher.Constraint("Horizontal", 3),
    Sketcher.Constraint("DistanceX", 1, 1, 1, 2, 75.0),
    Sketcher.Constraint("DistanceY", 0, 2, 0, 1, 30.0),
    Sketcher.Constraint("DistanceX", 0, 2, -1, 1, 37.5),
    Sketcher.Constraint("DistanceY", 0, 2, -1, 1, 47.5),
])
sketch17.setExpression("Constraints[8]", "Params.sketch17_width")
sketch17.setExpression("Constraints[9]", "Params.sketch17_height")
pocket10 = body.newObject("PartDesign::Pocket", "Pocket009")
pocket10.Profile = sketch17
pocket10.Type = "ThroughAll"

sketch18 = body.newObject("Sketcher::SketchObject", "Sketch017")
sketch18.AttachmentSupport = (doc.getObject("YZ_Plane"), [""])
sketch18.MapMode = "FlatFace"
sketch18.AttachmentOffset = App.Placement(App.Vector(0, 0, -75), App.Rotation())
sketch18.addGeometry([
    Part.LineSegment(App.Vector(-32, 2, 0), App.Vector(-38, 2, 0)),
    Part.LineSegment(App.Vector(-38, 2, 0), App.Vector(-38, 10, 0)),
    Part.LineSegment(App.Vector(-38, 10, 0), App.Vector(-32, 10, 0)),
    Part.LineSegment(App.Vector(-32, 10, 0), App.Vector(-32, 2, 0)),
], False)
sketch18.addConstraint([
    Sketcher.Constraint("Coincident", 0, 2, 1, 1),
    Sketcher.Constraint("Coincident", 1, 2, 2, 1),
    Sketcher.Constraint("Coincident", 2, 2, 3, 1),
    Sketcher.Constraint("Coincident", 3, 2, 0, 1),
    Sketcher.Constraint("Horizontal", 0),
    Sketcher.Constraint("Vertical", 1),
    Sketcher.Constraint("Horizontal", 2),
    Sketcher.Constraint("Vertical", 3),
    Sketcher.Constraint("DistanceX", 0, 2, 0, 1, 5.0),
    Sketcher.Constraint("DistanceY", 1, 1, 1, 2, 8.5),
    Sketcher.Constraint("DistanceY", -1, 1, 1, 2, 10.0),
    Sketcher.Constraint("DistanceX", 0, 2, -1, 1, 37.5),
])
sketch18.setExpression("Constraints[8]", "Params.sketch18_width")
sketch18.setExpression("Constraints[9]", "Params.sketch18_height")
pocket11 = body.newObject("PartDesign::Pocket", "Pocket010")
pocket11.Profile = sketch18
pocket11.setExpression("Length", "Params.pocket11_length")
pocket11.Reversed = True

sketch19 = body.newObject("Sketcher::SketchObject", "Sketch018")
sketch19.AttachmentSupport = (doc.getObject("XY_Plane"), [""])
sketch19.MapMode = "FlatFace"
sketch19.AttachmentOffset = App.Placement(App.Vector(0, 0, 10), App.Rotation())
sketch19.addGeometry([
    Part.LineSegment(App.Vector(-48, 12, 0), App.Vector(-48, -12, 0)),
    Part.LineSegment(App.Vector(-48, -12, 0), App.Vector(-30, -12, 0)),
    Part.LineSegment(App.Vector(-30, -12, 0), App.Vector(-30, 12, 0)),
    Part.LineSegment(App.Vector(-30, 12, 0), App.Vector(-48, 12, 0)),
], False)
sketch19.addConstraint([
    Sketcher.Constraint("Coincident", 0, 2, 1, 1),
    Sketcher.Constraint("Coincident", 1, 2, 2, 1),
    Sketcher.Constraint("Coincident", 2, 2, 3, 1),
    Sketcher.Constraint("Coincident", 3, 2, 0, 1),
    Sketcher.Constraint("Vertical", 0),
    Sketcher.Constraint("Horizontal", 1),
    Sketcher.Constraint("Vertical", 2),
    Sketcher.Constraint("Horizontal", 3),
    Sketcher.Constraint("DistanceX", 1, 1, 1, 2, 18.0),
    Sketcher.Constraint("DistanceY", 0, 2, 0, 1, 25.0),
    Sketcher.Constraint("DistanceX", 0, 2, -1, 1, 47.5),
    Sketcher.Constraint("DistanceY", 0, 2, -1, 1, 12.5),
])
sketch19.setExpression("Constraints[8]", "Params.sketch19_width")
sketch19.setExpression("Constraints[9]", "Params.sketch19_height")
pocket12 = body.newObject("PartDesign::Pocket", "Pocket011")
pocket12.Profile = sketch19
pocket12.setExpression("Length", "Params.pocket12_length")

sketch20 = body.newObject("Sketcher::SketchObject", "Sketch019")
sketch20.AttachmentSupport = (doc.getObject("YZ_Plane"), [""])
sketch20.MapMode = "FlatFace"
sketch20.AttachmentOffset = App.Placement(App.Vector(0, 0, -47.5), App.Rotation())
sketch20.addGeometry([
    Part.LineSegment(App.Vector(12, -5, 0), App.Vector(8, -5, 0)),
    Part.LineSegment(App.Vector(8, -5, 0), App.Vector(8, 0, 0)),
    Part.LineSegment(App.Vector(8, 0, 0), App.Vector(12, 0, 0)),
    Part.LineSegment(App.Vector(12, 0, 0), App.Vector(12, -5, 0)),
], False)
sketch20.addConstraint([
    Sketcher.Constraint("Coincident", 0, 2, 1, 1),
    Sketcher.Constraint("Coincident", 1, 2, 2, 1),
    Sketcher.Constraint("Coincident", 2, 2, 3, 1),
    Sketcher.Constraint("Coincident", 3, 2, 0, 1),
    Sketcher.Constraint("Horizontal", 0),
    Sketcher.Constraint("Vertical", 1),
    Sketcher.Constraint("Horizontal", 2),
    Sketcher.Constraint("Vertical", 3),
    Sketcher.Constraint("PointOnObject", 1, 2, -1),
    Sketcher.Constraint("Equal", 2, 1),
    Sketcher.Constraint("DistanceX", 0, 2, 0, 1, 5.0),
    Sketcher.Constraint("DistanceX", -1, 1, 0, 2, 7.5),
])
sketch20.setExpression("Constraints[10]", "Params.sketch20_width")
pocket13 = body.newObject("PartDesign::Pocket", "Pocket012")
pocket13.Profile = sketch20
pocket13.setExpression("Length", "Params.pocket13_length")
pocket13.Reversed = True
doc.recompute()

fillet = body.newObject("PartDesign::Fillet", "Fillet")
fillet.Base = (pocket13, edges_at(pocket13, [(-29.5, 0, 10)]))
fillet.setExpression("Radius", "Params.fillet_radius")

doc.recompute()
